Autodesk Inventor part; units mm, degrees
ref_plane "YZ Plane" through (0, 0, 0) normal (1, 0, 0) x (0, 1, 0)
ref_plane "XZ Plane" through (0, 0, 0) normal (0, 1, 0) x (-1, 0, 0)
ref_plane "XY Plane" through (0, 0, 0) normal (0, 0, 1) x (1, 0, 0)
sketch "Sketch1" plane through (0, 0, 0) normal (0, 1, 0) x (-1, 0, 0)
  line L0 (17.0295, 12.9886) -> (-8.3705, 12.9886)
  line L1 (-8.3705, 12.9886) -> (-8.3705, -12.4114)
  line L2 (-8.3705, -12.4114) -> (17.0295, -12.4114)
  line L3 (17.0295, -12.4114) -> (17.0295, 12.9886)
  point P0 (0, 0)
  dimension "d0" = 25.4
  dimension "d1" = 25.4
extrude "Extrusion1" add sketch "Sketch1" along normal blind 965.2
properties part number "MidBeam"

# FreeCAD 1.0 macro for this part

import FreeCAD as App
import Part
import Sketcher

V = App.Vector
Q = App.Units.Quantity

doc = App.newDocument("Part")
body = doc.addObject("PartDesign::Body", "Body")

# Sketch on XZ plane
sketch1 = body.newObject("Sketcher::SketchObject", "Sketch")
sketch1.AttachmentSupport = (doc.getObject("XZ_Plane"), [""])
sketch1.MapMode = "FlatFace"
sketch1.addGeometry([
    Part.LineSegment(V(-17, -12, 0), V(-17, 13, 0)),
    Part.LineSegment(V(-17, 13, 0), V(8, 13, 0)),
    Part.LineSegment(V(8, 13, 0), V(8, -12, 0)),
    Part.LineSegment(V(8, -12, 0), V(-17, -12, 0)),
], False)
sketch1.addConstraint([
    Sketcher.Constraint("Coincident", 0, 2, 1, 1),
    Sketcher.Constraint("Coincident", 1, 2, 2, 1),
    Sketcher.Constraint("Coincident", 2, 2, 3, 1),
    Sketcher.Constraint("Coincident", 3, 2, 0, 1),
    Sketcher.Constraint("Vertical", 0),
    Sketcher.Constraint("Horizontal", 1),
    Sketcher.Constraint("Vertical", 2),
    Sketcher.Constraint("Horizontal", 3),
    Sketcher.Constraint("Equal", 3, 0),
    Sketcher.Constraint("DistanceX", 1, 1, 1, 2, Q("1 in")),
    Sketcher.Constraint("DistanceX", 0, 2, -1, 1, Q("17.0295 mm")),
    Sketcher.Constraint("DistanceY", -1, 1, 0, 2, Q("12.9886 mm")),
])
pad1 = body.newObject("PartDesign::Pad", "Pad")
pad1.Profile = sketch1
pad1.Length = Q("38 in")
pad1.Reversed = True

doc.recompute()
